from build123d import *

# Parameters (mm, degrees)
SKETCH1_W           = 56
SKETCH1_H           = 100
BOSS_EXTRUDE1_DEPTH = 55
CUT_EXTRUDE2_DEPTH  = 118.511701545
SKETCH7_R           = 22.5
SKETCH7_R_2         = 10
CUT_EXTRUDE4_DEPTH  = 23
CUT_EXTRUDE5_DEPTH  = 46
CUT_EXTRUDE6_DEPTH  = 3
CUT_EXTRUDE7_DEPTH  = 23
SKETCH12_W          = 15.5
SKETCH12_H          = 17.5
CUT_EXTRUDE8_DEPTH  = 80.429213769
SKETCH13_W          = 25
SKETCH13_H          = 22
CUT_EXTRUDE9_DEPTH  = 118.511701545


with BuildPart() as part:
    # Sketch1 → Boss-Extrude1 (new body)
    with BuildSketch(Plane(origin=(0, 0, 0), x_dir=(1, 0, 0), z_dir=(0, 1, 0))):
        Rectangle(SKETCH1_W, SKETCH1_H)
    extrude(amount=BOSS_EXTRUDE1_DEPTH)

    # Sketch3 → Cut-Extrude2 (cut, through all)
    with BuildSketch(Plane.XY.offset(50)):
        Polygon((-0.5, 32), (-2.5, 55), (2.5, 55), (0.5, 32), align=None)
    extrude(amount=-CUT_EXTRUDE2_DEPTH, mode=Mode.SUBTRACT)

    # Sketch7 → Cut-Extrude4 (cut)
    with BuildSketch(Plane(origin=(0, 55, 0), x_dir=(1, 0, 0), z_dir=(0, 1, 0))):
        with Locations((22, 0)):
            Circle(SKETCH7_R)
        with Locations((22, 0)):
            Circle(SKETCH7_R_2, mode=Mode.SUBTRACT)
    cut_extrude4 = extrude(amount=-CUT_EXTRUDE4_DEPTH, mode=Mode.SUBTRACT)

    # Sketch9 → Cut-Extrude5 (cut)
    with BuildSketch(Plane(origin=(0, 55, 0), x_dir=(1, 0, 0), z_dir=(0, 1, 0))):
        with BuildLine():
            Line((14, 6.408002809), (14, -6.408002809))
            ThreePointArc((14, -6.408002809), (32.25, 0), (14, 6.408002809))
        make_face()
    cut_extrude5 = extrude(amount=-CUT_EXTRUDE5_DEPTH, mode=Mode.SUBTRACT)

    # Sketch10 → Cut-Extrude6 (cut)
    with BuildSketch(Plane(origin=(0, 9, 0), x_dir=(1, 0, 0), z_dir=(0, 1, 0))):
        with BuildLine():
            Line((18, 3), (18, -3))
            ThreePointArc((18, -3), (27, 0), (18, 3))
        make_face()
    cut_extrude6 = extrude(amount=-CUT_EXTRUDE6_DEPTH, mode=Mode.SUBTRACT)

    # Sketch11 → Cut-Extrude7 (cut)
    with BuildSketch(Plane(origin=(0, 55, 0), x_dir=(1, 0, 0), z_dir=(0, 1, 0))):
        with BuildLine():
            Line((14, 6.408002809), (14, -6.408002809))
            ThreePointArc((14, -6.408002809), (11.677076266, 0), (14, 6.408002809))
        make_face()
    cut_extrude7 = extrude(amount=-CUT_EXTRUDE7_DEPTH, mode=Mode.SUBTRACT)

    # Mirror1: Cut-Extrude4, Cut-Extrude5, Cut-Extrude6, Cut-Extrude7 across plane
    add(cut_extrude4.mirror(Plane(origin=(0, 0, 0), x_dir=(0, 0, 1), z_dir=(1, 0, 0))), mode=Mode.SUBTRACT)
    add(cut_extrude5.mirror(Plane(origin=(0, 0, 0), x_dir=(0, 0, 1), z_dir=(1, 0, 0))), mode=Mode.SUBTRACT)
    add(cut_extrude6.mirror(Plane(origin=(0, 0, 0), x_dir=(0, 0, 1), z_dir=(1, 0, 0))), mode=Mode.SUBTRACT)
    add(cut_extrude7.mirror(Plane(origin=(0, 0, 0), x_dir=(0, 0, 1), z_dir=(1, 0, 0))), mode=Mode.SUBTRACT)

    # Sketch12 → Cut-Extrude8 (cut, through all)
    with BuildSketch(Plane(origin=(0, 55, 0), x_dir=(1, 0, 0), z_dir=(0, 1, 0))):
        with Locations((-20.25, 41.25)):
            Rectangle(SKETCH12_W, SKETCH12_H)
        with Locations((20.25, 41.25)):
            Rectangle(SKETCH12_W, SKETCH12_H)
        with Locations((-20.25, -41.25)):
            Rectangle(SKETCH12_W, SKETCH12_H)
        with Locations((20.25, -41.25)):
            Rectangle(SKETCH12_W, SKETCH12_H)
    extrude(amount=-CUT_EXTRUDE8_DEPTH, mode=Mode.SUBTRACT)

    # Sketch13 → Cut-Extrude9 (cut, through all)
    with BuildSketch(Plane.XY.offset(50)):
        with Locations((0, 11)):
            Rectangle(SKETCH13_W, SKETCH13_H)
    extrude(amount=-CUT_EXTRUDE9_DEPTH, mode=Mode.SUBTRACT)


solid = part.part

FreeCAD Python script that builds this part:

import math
import FreeCAD as App
import Part
import Sketcher
Q = App.Units.Quantity

doc = App.newDocument("Part")
body = doc.addObject("PartDesign::Body", "Body")

# Sketch on XZ plane
sketch1 = doc.addObject("Sketcher::SketchObject", "Sketch")
body.addObject(sketch1)
sketch1.AttachmentSupport = (doc.XZ_Plane, [""])
sketch1.MapMode = "FlatFace"
sketch1.addGeometry(Part.LineSegment(App.Vector(-28, -50, 0), App.Vector(-28, 50, 0)), False)
sketch1.addGeometry(Part.LineSegment(App.Vector(-28, 50, 0), App.Vector(28, 50, 0)), False)
sketch1.addGeometry(Part.LineSegment(App.Vector(28, 50, 0), App.Vector(28, -50, 0)), False)
sketch1.addGeometry(Part.LineSegment(App.Vector(28, -50, 0), App.Vector(-28, -50, 0)), False)
sketch1.addConstraint(Sketcher.Constraint("Coincident", 0, 2, 1, 1))
sketch1.addConstraint(Sketcher.Constraint("Coincident", 1, 2, 2, 1))
sketch1.addConstraint(Sketcher.Constraint("Coincident", 2, 2, 3, 1))
sketch1.addConstraint(Sketcher.Constraint("Coincident", 3, 2, 0, 1))
sketch1.addConstraint(Sketcher.Constraint("Vertical", 0))
sketch1.addConstraint(Sketcher.Constraint("Horizontal", 1))
sketch1.addConstraint(Sketcher.Constraint("Vertical", 2))
sketch1.addConstraint(Sketcher.Constraint("Horizontal", 3))
sketch1.addConstraint(Sketcher.Constraint("Symmetric", 0, 2, 2, 2, -1, 1))
sketch1.addConstraint(Sketcher.Constraint("DistanceX", 1, 1, 1, 2, Q("56 mm")))
sketch1.addConstraint(Sketcher.Constraint("DistanceY", 0, 1, 0, 2, Q("100 mm")))
pad1 = doc.addObject("PartDesign::Pad", "Pad")
body.addObject(pad1)
pad1.Profile = sketch1
pad1.Length = 55
pad1.Reversed = True

# Sketch on XY plane
sketch2 = doc.addObject("Sketcher::SketchObject", "Sketch001")
body.addObject(sketch2)
sketch2.AttachmentSupport = (doc.XY_Plane, [""])
sketch2.MapMode = "FlatFace"
sketch2.AttachmentOffset = App.Placement(App.Vector(0, 0, 50), App.Rotation())
sketch2.addGeometry(Part.LineSegment(App.Vector(-2.5, 55, 0), App.Vector(-0.5, 32, 0)), False)
sketch2.addGeometry(Part.LineSegment(App.Vector(-0.5, 32, 0), App.Vector(0.5, 32, 0)), False)
sketch2.addGeometry(Part.LineSegment(App.Vector(0.5, 32, 0), App.Vector(2.5, 55, 0)), False)
sketch2.addGeometry(Part.LineSegment(App.Vector(2.5, 55, 0), App.Vector(-2.5, 55, 0)), False)
sketch2.addConstraint(Sketcher.Constraint("Coincident", 0, 2, 1, 1))
sketch2.addConstraint(Sketcher.Constraint("Coincident", 1, 2, 2, 1))
sketch2.addConstraint(Sketcher.Constraint("Coincident", 2, 2, 3, 1))
sketch2.addConstraint(Sketcher.Constraint("Coincident", 3, 2, 0, 1))
sketch2.addConstraint(Sketcher.Constraint("Horizontal", 1))
sketch2.addConstraint(Sketcher.Constraint("Horizontal", 3))
sketch2.addConstraint(Sketcher.Constraint("Equal", 0, 2))
sketch2.addConstraint(Sketcher.Constraint("DistanceX", 1, 1, 1, 2, Q("1 mm")))
sketch2.addConstraint(Sketcher.Constraint("DistanceX", 3, 2, 3, 1, Q("5 mm")))
sketch2.addConstraint(Sketcher.Constraint("DistanceY", -1, 1, 0, 2, Q("32 mm")))
sketch2.addConstraint(Sketcher.Constraint("DistanceY", -1, 1, 2, 2, Q("55 mm")))
sketch2.addConstraint(Sketcher.Constraint("DistanceX", 0, 2, -1, 1, Q("0.5 mm")))
pocket1 = doc.addObject("PartDesign::Pocket", "Pocket")
body.addObject(pocket1)
pocket1.Profile = sketch2
pocket1.Type = "ThroughAll"

# Sketch on XZ plane
sketch3 = doc.addObject("Sketcher::SketchObject", "Sketch002")
body.addObject(sketch3)
sketch3.AttachmentSupport = (doc.XZ_Plane, [""])
sketch3.MapMode = "FlatFace"
sketch3.AttachmentOffset = App.Placement(App.Vector(0, 0, -55), App.Rotation())
sketch3.addGeometry(Part.Circle(App.Vector(22, 0, 0), App.Vector(0, 0, 1), 22), False)
sketch3.addGeometry(Part.Circle(App.Vector(22, 0, 0), App.Vector(0, 0, 1), 10), False)
sketch3.addConstraint(Sketcher.Constraint("Coincident", 1, 3, 0, 3))
sketch3.addConstraint(Sketcher.Constraint("PointOnObject", 0, 3, -1))
sketch3.addConstraint(Sketcher.Constraint("Diameter", 0, Q("45 mm")))
sketch3.addConstraint(Sketcher.Constraint("Diameter", 1, Q("20 mm")))
sketch3.addConstraint(Sketcher.Constraint("DistanceX", -1, 1, 0, 3, Q("22 mm")))
pocket2 = doc.addObject("PartDesign::Pocket", "Pocket001")
body.addObject(pocket2)
pocket2.Profile = sketch3
pocket2.Length = 23
pocket2.Reversed = True

# Sketch on XZ plane
sketch4 = doc.addObject("Sketcher::SketchObject", "Sketch003")
body.addObject(sketch4)
sketch4.AttachmentSupport = (doc.XZ_Plane, [""])
sketch4.MapMode = "FlatFace"
sketch4.AttachmentOffset = App.Placement(App.Vector(0, 0, -55), App.Rotation())
sketch4.addGeometry(Part.LineSegment(App.Vector(14, -6, 0), App.Vector(14, 6, 0)), False)
sketch4.addGeometry(Part.ArcOfCircle(Part.Circle(App.Vector(22, 0, 0), App.Vector(0, 0, 1), 10), math.radians(-141), math.radians(141)), False)
sketch4.addConstraint(Sketcher.Constraint("Coincident", 0, 1, 1, 1))
sketch4.addConstraint(Sketcher.Constraint("Coincident", 1, 2, 0, 2))
sketch4.addConstraint(Sketcher.Constraint("Vertical", 0))
sketch4.addConstraint(Sketcher.Constraint("PointOnObject", 1, 3, -1))
sketch4.addConstraint(Sketcher.Constraint("Radius", 1, Q("10.25 mm")))
sketch4.addConstraint(Sketcher.Constraint("DistanceX", -1, 1, 1, 3, Q("22 mm")))
sketch4.addConstraint(Sketcher.Constraint("DistanceX", -1, 1, 0, 1, Q("14 mm")))
pocket3 = doc.addObject("PartDesign::Pocket", "Pocket002")
body.addObject(pocket3)
pocket3.Profile = sketch4
pocket3.Length = 46
pocket3.Reversed = True

# Sketch on XZ plane
sketch5 = doc.addObject("Sketcher::SketchObject", "Sketch004")
body.addObject(sketch5)
sketch5.AttachmentSupport = (doc.XZ_Plane, [""])
sketch5.MapMode = "FlatFace"
sketch5.AttachmentOffset = App.Placement(App.Vector(0, 0, -9), App.Rotation())
sketch5.addGeometry(Part.LineSegment(App.Vector(18, -3, 0), App.Vector(18, 3, 0)), False)
sketch5.addGeometry(Part.ArcOfCircle(Part.Circle(App.Vector(22, 0, 0), App.Vector(0, 0, 1), 5), math.radians(-143), math.radians(143)), False)
sketch5.addConstraint(Sketcher.Constraint("Coincident", 0, 1, 1, 1))
sketch5.addConstraint(Sketcher.Constraint("Coincident", 1, 2, 0, 2))
sketch5.addConstraint(Sketcher.Constraint("Vertical", 0))
sketch5.addConstraint(Sketcher.Constraint("PointOnObject", 1, 3, -1))
sketch5.addConstraint(Sketcher.Constraint("Radius", 1, Q("5 mm")))
sketch5.addConstraint(Sketcher.Constraint("DistanceY", 0, 1, 0, 2, Q("6 mm")))
sketch5.addConstraint(Sketcher.Constraint("DistanceX", -1, 1, 1, 3, Q("22 mm")))
pocket4 = doc.addObject("PartDesign::Pocket", "Pocket003")
body.addObject(pocket4)
pocket4.Profile = sketch5
pocket4.Length = 3
pocket4.Reversed = True

# Sketch on XZ plane
sketch6 = doc.addObject("Sketcher::SketchObject", "Sketch005")
body.addObject(sketch6)
sketch6.AttachmentSupport = (doc.XZ_Plane, [""])
sketch6.MapMode = "FlatFace"
sketch6.AttachmentOffset = App.Placement(App.Vector(0, 0, -55), App.Rotation())
sketch6.addGeometry(Part.LineSegment(App.Vector(14, 6, 0), App.Vector(14, -6, 0)), False)
sketch6.addGeometry(Part.ArcOfCircle(Part.Circle(App.Vector(22, 0, 0), App.Vector(0, 0, 1), 10), math.radians(140), math.radians(220)), False)
sketch6.addConstraint(Sketcher.Constraint("Coincident", 0, 1, 1, 1))
sketch6.addConstraint(Sketcher.Constraint("Coincident", 1, 2, 0, 2))
sketch6.addConstraint(Sketcher.Constraint("Vertical", 0))
sketch6.addConstraint(Sketcher.Constraint("PointOnObject", 1, 3, -1))
sketch6.addConstraint(Sketcher.Constraint("Radius", 1, Q("10 mm")))
sketch6.addConstraint(Sketcher.Constraint("DistanceX", -1, 1, 0, 1, Q("14 mm")))
sketch6.addConstraint(Sketcher.Constraint("DistanceY", 0, 2, 0, 1, Q("12.816006 mm")))
pocket5 = doc.addObject("PartDesign::Pocket", "Pocket004")
body.addObject(pocket5)
pocket5.Profile = sketch6
pocket5.Length = 23
pocket5.Reversed = True
doc.recompute()

mirrored = doc.addObject("PartDesign::Mirrored", "Mirrored")
body.addObject(mirrored)
mirrored.Originals = [pocket2, pocket3, pocket4, pocket5]
mirrored.MirrorPlane = (doc.YZ_Plane, [""])
body.Tip = mirrored

# Sketch on XZ plane
sketch7 = doc.addObject("Sketcher::SketchObject", "Sketch006")
body.addObject(sketch7)
sketch7.AttachmentSupport = (doc.XZ_Plane, [""])
sketch7.MapMode = "FlatFace"
sketch7.AttachmentOffset = App.Placement(App.Vector(0, 0, -55), App.Rotation())
sketch7.addGeometry(Part.LineSegment(App.Vector(-28, -50, 0), App.Vector(-28, -32, 0)), False)
sketch7.addGeometry(Part.LineSegment(App.Vector(-28, -32, 0), App.Vector(-12, -32, 0)), False)
sketch7.addGeometry(Part.LineSegment(App.Vector(-12, -32, 0), App.Vector(-12, -50, 0)), False)
sketch7.addGeometry(Part.LineSegment(App.Vector(-12, -50, 0), App.Vector(-28, -50, 0)), False)
sketch7.addGeometry(Part.LineSegment(App.Vector(12, -50, 0), App.Vector(12, -32, 0)), False)
sketch7.addGeometry(Part.LineSegment(App.Vector(12, -32, 0), App.Vector(28, -32, 0)), False)
sketch7.addGeometry(Part.LineSegment(App.Vector(28, -32, 0), App.Vector(28, -50, 0)), False)
sketch7.addGeometry(Part.LineSegment(App.Vector(28, -50, 0), App.Vector(12, -50, 0)), False)
sketch7.addGeometry(Part.LineSegment(App.Vector(-28, 32, 0), App.Vector(-28, 50, 0)), False)
sketch7.addGeometry(Part.LineSegment(App.Vector(-28, 50, 0), App.Vector(-12, 50, 0)), False)
sketch7.addGeometry(Part.LineSegment(App.Vector(-12, 50, 0), App.Vector(-12, 32, 0)), False)
sketch7.addGeometry(Part.LineSegment(App.Vector(-12, 32, 0), App.Vector(-28, 32, 0)), False)
sketch7.addGeometry(Part.LineSegment(App.Vector(12, 32, 0), App.Vector(12, 50, 0)), False)
sketch7.addGeometry(Part.LineSegment(App.Vector(12, 50, 0), App.Vector(28, 50, 0)), False)
sketch7.addGeometry(Part.LineSegment(App.Vector(28, 50, 0), App.Vector(28, 32, 0)), False)
sketch7.addGeometry(Part.LineSegment(App.Vector(28, 32, 0), App.Vector(12, 32, 0)), False)
sketch7.addConstraint(Sketcher.Constraint("Coincident", 0, 2, 1, 1))
sketch7.addConstraint(Sketcher.Constraint("Coincident", 1, 2, 2, 1))
sketch7.addConstraint(Sketcher.Constraint("Coincident", 2, 2, 3, 1))
sketch7.addConstraint(Sketcher.Constraint("Coincident", 3, 2, 0, 1))
sketch7.addConstraint(Sketcher.Constraint("Coincident", 4, 2, 5, 1))
sketch7.addConstraint(Sketcher.Constraint("Coincident", 5, 2, 6, 1))
sketch7.addConstraint(Sketcher.Constraint("Coincident", 6, 2, 7, 1))
sketch7.addConstraint(Sketcher.Constraint("Coincident", 7, 2, 4, 1))
sketch7.addConstraint(Sketcher.Constraint("Coincident", 8, 2, 9, 1))
sketch7.addConstraint(Sketcher.Constraint("Coincident", 9, 2, 10, 1))
sketch7.addConstraint(Sketcher.Constraint("Coincident", 10, 2, 11, 1))
sketch7.addConstraint(Sketcher.Constraint("Coincident", 11, 2, 8, 1))
sketch7.addConstraint(Sketcher.Constraint("Coincident", 12, 2, 13, 1))
sketch7.addConstraint(Sketcher.Constraint("Coincident", 13, 2, 14, 1))
sketch7.addConstraint(Sketcher.Constraint("Coincident", 14, 2, 15, 1))
sketch7.addConstraint(Sketcher.Constraint("Coincident", 15, 2, 12, 1))
sketch7.addConstraint(Sketcher.Constraint("Vertical", 0))
sketch7.addConstraint(Sketcher.Constraint("Horizontal", 1))
sketch7.addConstraint(Sketcher.Constraint("Vertical", 2))
sketch7.addConstraint(Sketcher.Constraint("Horizontal", 3))
sketch7.addConstraint(Sketcher.Constraint("Vertical", 4))
sketch7.addConstraint(Sketcher.Constraint("Horizontal", 5))
sketch7.addConstraint(Sketcher.Constraint("Vertical", 6))
sketch7.addConstraint(Sketcher.Constraint("Horizontal", 7))
sketch7.addConstraint(Sketcher.Constraint("Vertical", 8))
sketch7.addConstraint(Sketcher.Constraint("Horizontal", 9))
sketch7.addConstraint(Sketcher.Constraint("Vertical", 10))
sketch7.addConstraint(Sketcher.Constraint("Horizontal", 11))
sketch7.addConstraint(Sketcher.Constraint("Vertical", 12))
sketch7.addConstraint(Sketcher.Constraint("Horizontal", 13))
sketch7.addConstraint(Sketcher.Constraint("Vertical", 14))
sketch7.addConstraint(Sketcher.Constraint("Horizontal", 15))
sketch7.addConstraint(Sketcher.Constraint("Symmetric", 6, 2, 8, 2, -1, 1))
sketch7.addConstraint(Sketcher.Constraint("Symmetric", 4, 2, 10, 2, -1, 1))
sketch7.addConstraint(Sketcher.Constraint("Symmetric", 2, 2, 12, 2, -1, 1))
sketch7.addConstraint(Sketcher.Constraint("Symmetric", 0, 2, 14, 2, -1, 1))
sketch7.addConstraint(Sketcher.Constraint("Symmetric", 1, 2, 4, 2, -2))
sketch7.addConstraint(Sketcher.Constraint("Symmetric", 3, 2, 6, 2, -2))
sketch7.addConstraint(Sketcher.Constraint("DistanceX", 1, 1, 1, 2, Q("15.5 mm")))
sketch7.addConstraint(Sketcher.Constraint("DistanceY", 0, 1, 0, 2, Q("17.5 mm")))
sketch7.addConstraint(Sketcher.Constraint("DistanceX", 0, 2, -1, 1, Q("28 mm")))
sketch7.addConstraint(Sketcher.Constraint("DistanceY", 2, 2, -1, 1, Q("50 mm")))
pocket6 = doc.addObject("PartDesign::Pocket", "Pocket005")
body.addObject(pocket6)
pocket6.Profile = sketch7
pocket6.Type = "ThroughAll"
pocket6.Reversed = True

# Sketch on XY plane
sketch8 = doc.addObject("Sketcher::SketchObject", "Sketch007")
body.addObject(sketch8)
sketch8.AttachmentSupport = (doc.XY_Plane, [""])
sketch8.MapMode = "FlatFace"
sketch8.AttachmentOffset = App.Placement(App.Vector(0, 0, 50), App.Rotation())
sketch8.addGeometry(Part.LineSegment(App.Vector(-12, 22, 0), App.Vector(-12, 0, 0)), False)
sketch8.addGeometry(Part.LineSegment(App.Vector(-12, 0, 0), App.Vector(12, 0, 0)), False)
sketch8.addGeometry(Part.LineSegment(App.Vector(12, 0, 0), App.Vector(12, 22, 0)), False)
sketch8.addGeometry(Part.LineSegment(App.Vector(12, 22, 0), App.Vector(-12, 22, 0)), False)
sketch8.addConstraint(Sketcher.Constraint("Coincident", 0, 2, 1, 1))
sketch8.addConstraint(Sketcher.Constraint("Coincident", 1, 2, 2, 1))
sketch8.addConstraint(Sketcher.Constraint("Coincident", 2, 2, 3, 1))
sketch8.addConstraint(Sketcher.Constraint("Coincident", 3, 2, 0, 1))
sketch8.addConstraint(Sketcher.Constraint("Vertical", 0))
sketch8.addConstraint(Sketcher.Constraint("Horizontal", 1))
sketch8.addConstraint(Sketcher.Constraint("Vertical", 2))
sketch8.addConstraint(Sketcher.Constraint("Horizontal", 3))
sketch8.addConstraint(Sketcher.Constraint("Symmetric", 0, 2, 1, 2, -1, 1))
sketch8.addConstraint(Sketcher.Constraint("DistanceX", 1, 1, 1, 2, Q("25 mm")))
sketch8.addConstraint(Sketcher.Constraint("DistanceY", 0, 2, 0, 1, Q("22 mm")))
pocket7 = doc.addObject("PartDesign::Pocket", "Pocket006")
body.addObject(pocket7)
pocket7.Profile = sketch8
pocket7.Type = "ThroughAll"

doc.recompute()
